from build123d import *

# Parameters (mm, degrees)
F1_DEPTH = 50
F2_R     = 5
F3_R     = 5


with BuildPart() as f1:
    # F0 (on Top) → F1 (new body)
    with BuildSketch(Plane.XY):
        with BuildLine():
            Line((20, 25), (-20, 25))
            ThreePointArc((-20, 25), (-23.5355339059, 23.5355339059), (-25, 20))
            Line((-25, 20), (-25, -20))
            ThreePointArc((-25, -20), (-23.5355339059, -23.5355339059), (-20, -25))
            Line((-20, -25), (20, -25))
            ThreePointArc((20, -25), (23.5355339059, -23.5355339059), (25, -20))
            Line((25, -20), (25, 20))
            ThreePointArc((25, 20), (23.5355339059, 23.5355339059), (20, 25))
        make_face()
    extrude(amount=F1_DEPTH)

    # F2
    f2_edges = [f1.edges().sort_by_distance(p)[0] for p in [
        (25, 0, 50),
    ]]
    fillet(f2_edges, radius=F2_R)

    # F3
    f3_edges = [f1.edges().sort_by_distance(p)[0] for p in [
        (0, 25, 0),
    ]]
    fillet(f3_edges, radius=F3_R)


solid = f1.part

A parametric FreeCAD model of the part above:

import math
import FreeCAD as App
import Part
import Sketcher

V = App.Vector
Q = App.Units.Quantity


def edges_at(feature, points):
    """Names of the edges that pass closest to the given points."""
    edges = feature.Shape.Edges
    near = lambda p: min(range(len(edges)), key=lambda i: edges[i].distToShape(Part.Vertex(*p))[0])
    return sorted({f"Edge{near(p) + 1}" for p in points})

doc = App.newDocument("Part")
params = doc.addObject("Spreadsheet::Sheet", "Params")
for row, (alias, value) in enumerate([
    ("sketch1_radius", "5 mm"),
    ("sketch1_width", "40 mm"),
    ("pad1_length", "50 mm"),
    ("fillet_radius", "5 mm"),
    ("fillet2_radius", "5 mm"),
], start=1):
    params.set(f"A{row}", alias)
    params.set(f"B{row}", "=" + value)
    params.setAlias(f"B{row}", alias)

body = doc.addObject("PartDesign::Body", "Body")

# Sketch on XY plane
sketch1 = doc.addObject("Sketcher::SketchObject", "Sketch")
body.addObject(sketch1)
sketch1.AttachmentSupport = (doc.XY_Plane, [""])
sketch1.MapMode = "FlatFace"
sketch1.addGeometry([
    Part.LineSegment(V(20, 25, 0), V(-20, 25, 0)),  # 0
    Part.ArcOfCircle(Part.Circle(V(-20, 20, 0), V(0, 0, 1), 5), math.radians(90), math.radians(180)),  # 1
    Part.LineSegment(V(-25, 20, 0), V(-25, -20, 0)),  # 2
    Part.ArcOfCircle(Part.Circle(V(-20, -20, 0), V(0, 0, 1), 5), math.radians(180), math.radians(270)),  # 3
    Part.LineSegment(V(-20, -25, 0), V(20, -25, 0)),  # 4
    Part.ArcOfCircle(Part.Circle(V(20, -20, 0), V(0, 0, 1), 5), math.radians(-90), math.radians(0)),  # 5
    Part.LineSegment(V(25, -20, 0), V(25, 20, 0)),  # 6
    Part.ArcOfCircle(Part.Circle(V(20, 20, 0), V(0, 0, 1), 5), math.radians(0), math.radians(90)),  # 7
], False)
sketch1.addConstraint([
    Sketcher.Constraint("Tangent", 0, 2, 1, 1),
    Sketcher.Constraint("Tangent", 1, 2, 2, 1),
    Sketcher.Constraint("Tangent", 2, 2, 3, 1),
    Sketcher.Constraint("Tangent", 3, 2, 4, 1),
    Sketcher.Constraint("Tangent", 4, 2, 5, 1),
    Sketcher.Constraint("Tangent", 5, 2, 6, 1),
    Sketcher.Constraint("Tangent", 6, 2, 7, 1),
    Sketcher.Constraint("Tangent", 7, 2, 0, 1),
    Sketcher.Constraint("Horizontal", 0),
    Sketcher.Constraint("Vertical", 2),
    Sketcher.Constraint("Horizontal", 4),
    Sketcher.Constraint("Vertical", 6),
    Sketcher.Constraint("Equal", 1, 3),
    Sketcher.Constraint("Equal", 3, 5),
    Sketcher.Constraint("Equal", 5, 7),
    Sketcher.Constraint("Symmetric", 1, 3, 5, 3, -1, 1),
    Sketcher.Constraint("Equal", 4, 2),
    Sketcher.Constraint("Radius", 1, Q("5 mm")),
    Sketcher.Constraint("DistanceX", 0, 2, 0, 1, Q("40 mm")),
])
sketch1.setExpression("Constraints[17]", "Params.sketch1_radius")
sketch1.setExpression("Constraints[18]", "Params.sketch1_width")
pad1 = doc.addObject("PartDesign::Pad", "Pad")
body.addObject(pad1)
pad1.Profile = sketch1
pad1.setExpression("Length", "Params.pad1_length")
doc.recompute()

fillet = doc.addObject("PartDesign::Fillet", "Fillet")
body.addObject(fillet)
fillet.Base = (pad1, edges_at(pad1, [(25, 0, 50)]))
fillet.setExpression("Radius", "Params.fillet_radius")
doc.recompute()

fillet2 = doc.addObject("PartDesign::Fillet", "Fillet001")
body.addObject(fillet2)
fillet2.Base = (fillet, edges_at(fillet, [(0, 25, 0)]))
fillet2.setExpression("Radius", "Params.fillet2_radius")

doc.recompute()
